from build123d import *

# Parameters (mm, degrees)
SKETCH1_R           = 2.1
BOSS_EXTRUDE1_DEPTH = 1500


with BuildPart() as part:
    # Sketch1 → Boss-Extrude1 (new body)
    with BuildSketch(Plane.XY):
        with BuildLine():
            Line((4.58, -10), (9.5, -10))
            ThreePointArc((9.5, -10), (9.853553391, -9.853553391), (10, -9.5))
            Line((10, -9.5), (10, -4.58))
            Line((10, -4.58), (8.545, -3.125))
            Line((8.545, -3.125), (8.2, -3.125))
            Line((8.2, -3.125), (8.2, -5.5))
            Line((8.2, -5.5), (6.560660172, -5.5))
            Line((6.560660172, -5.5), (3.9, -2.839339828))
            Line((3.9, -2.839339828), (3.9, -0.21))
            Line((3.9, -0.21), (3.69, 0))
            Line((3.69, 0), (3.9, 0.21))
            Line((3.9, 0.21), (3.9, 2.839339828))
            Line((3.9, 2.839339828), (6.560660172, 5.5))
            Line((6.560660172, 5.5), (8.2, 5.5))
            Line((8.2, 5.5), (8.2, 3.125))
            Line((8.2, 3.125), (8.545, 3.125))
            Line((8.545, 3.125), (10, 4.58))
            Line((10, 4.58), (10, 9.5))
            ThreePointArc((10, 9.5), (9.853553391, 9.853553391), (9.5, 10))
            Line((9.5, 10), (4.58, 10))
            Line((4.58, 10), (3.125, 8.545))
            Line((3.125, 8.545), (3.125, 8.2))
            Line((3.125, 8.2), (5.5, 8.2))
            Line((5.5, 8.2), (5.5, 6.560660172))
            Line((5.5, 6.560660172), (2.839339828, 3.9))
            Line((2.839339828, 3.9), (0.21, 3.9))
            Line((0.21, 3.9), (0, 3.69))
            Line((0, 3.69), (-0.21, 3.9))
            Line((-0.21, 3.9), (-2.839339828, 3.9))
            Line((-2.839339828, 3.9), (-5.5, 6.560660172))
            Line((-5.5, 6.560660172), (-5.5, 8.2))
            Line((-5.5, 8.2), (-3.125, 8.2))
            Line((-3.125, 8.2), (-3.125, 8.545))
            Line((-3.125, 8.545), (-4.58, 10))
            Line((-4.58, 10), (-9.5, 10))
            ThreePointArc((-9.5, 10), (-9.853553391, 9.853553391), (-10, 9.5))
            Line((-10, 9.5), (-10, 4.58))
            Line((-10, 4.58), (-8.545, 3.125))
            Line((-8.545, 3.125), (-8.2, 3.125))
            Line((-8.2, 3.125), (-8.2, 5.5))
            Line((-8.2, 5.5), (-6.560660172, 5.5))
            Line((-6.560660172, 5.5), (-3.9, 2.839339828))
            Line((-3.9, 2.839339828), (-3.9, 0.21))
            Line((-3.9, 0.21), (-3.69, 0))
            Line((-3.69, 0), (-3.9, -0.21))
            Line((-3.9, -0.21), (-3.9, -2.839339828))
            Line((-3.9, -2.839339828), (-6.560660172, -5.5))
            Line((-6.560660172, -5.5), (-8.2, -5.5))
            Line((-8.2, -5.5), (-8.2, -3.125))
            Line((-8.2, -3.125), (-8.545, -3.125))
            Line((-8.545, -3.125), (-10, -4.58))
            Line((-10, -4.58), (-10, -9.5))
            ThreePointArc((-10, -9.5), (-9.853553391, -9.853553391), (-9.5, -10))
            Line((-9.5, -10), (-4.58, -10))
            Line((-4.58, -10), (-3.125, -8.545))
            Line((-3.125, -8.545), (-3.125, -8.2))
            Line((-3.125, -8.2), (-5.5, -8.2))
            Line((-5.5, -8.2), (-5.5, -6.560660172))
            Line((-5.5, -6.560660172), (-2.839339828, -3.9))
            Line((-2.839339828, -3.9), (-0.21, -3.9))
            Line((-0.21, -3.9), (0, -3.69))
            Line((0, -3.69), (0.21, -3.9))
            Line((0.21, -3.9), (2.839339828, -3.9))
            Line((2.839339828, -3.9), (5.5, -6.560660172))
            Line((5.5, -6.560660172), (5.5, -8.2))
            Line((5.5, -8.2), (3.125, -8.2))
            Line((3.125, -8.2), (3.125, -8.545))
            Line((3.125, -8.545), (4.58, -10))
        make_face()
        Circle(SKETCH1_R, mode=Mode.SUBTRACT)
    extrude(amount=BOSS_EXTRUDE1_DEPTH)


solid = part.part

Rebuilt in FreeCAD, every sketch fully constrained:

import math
import FreeCAD as App
import Part
import Sketcher

doc = App.newDocument("Part")
body = doc.addObject("PartDesign::Body", "Body")

sketch1 = doc.addObject("Sketcher::SketchObject", "Sketch")
body.addObject(sketch1)
sketch1.AttachmentSupport = (doc.XY_Plane, [""])
sketch1.MapMode = "FlatFace"
sketch1.addGeometry([
    Part.LineSegment(App.Vector(4.58, -10, 0), App.Vector(9.5, -10, 0)),
    Part.ArcOfCircle(Part.Circle(App.Vector(9.5, -9.5, 0), App.Vector(0, 0, 1), 0.5), math.radians(-90), math.radians(0)),
    Part.LineSegment(App.Vector(10, -9.5, 0), App.Vector(10, -4.58, 0)),
    Part.LineSegment(App.Vector(10, -4.58, 0), App.Vector(8.545, -3.125, 0)),
    Part.LineSegment(App.Vector(8.545, -3.125, 0), App.Vector(8.2, -3.125, 0)),
    Part.LineSegment(App.Vector(8.2, -3.125, 0), App.Vector(8.2, -5.5, 0)),
    Part.LineSegment(App.Vector(8.2, -5.5, 0), App.Vector(6.56066, -5.5, 0)),
    Part.LineSegment(App.Vector(6.56066, -5.5, 0), App.Vector(3.9, -2.83934, 0)),
    Part.LineSegment(App.Vector(3.9, -2.83934, 0), App.Vector(3.9, -0.21, 0)),
    Part.LineSegment(App.Vector(3.9, -0.21, 0), App.Vector(3.69, 0, 0)),
    Part.LineSegment(App.Vector(3.69, 0, 0), App.Vector(3.9, 0.21, 0)),
    Part.LineSegment(App.Vector(3.9, 0.21, 0), App.Vector(3.9, 2.83934, 0)),
    Part.LineSegment(App.Vector(3.9, 2.83934, 0), App.Vector(6.56066, 5.5, 0)),
    Part.LineSegment(App.Vector(6.56066, 5.5, 0), App.Vector(8.2, 5.5, 0)),
    Part.LineSegment(App.Vector(8.2, 5.5, 0), App.Vector(8.2, 3.125, 0)),
    Part.LineSegment(App.Vector(8.2, 3.125, 0), App.Vector(8.545, 3.125, 0)),
    Part.LineSegment(App.Vector(8.545, 3.125, 0), App.Vector(10, 4.58, 0)),
    Part.LineSegment(App.Vector(10, 4.58, 0), App.Vector(10, 9.5, 0)),
    Part.ArcOfCircle(Part.Circle(App.Vector(9.5, 9.5, 0), App.Vector(0, 0, 1), 0.5), math.radians(0), math.radians(90)),
    Part.LineSegment(App.Vector(9.5, 10, 0), App.Vector(4.58, 10, 0)),
    Part.LineSegment(App.Vector(4.58, 10, 0), App.Vector(3.125, 8.545, 0)),
    Part.LineSegment(App.Vector(3.125, 8.545, 0), App.Vector(3.125, 8.2, 0)),
    Part.LineSegment(App.Vector(3.125, 8.2, 0), App.Vector(5.5, 8.2, 0)),
    Part.LineSegment(App.Vector(5.5, 8.2, 0), App.Vector(5.5, 6.56066, 0)),
    Part.LineSegment(App.Vector(5.5, 6.56066, 0), App.Vector(2.83934, 3.9, 0)),
    Part.LineSegment(App.Vector(2.83934, 3.9, 0), App.Vector(0.21, 3.9, 0)),
    Part.LineSegment(App.Vector(0.21, 3.9, 0), App.Vector(0, 3.69, 0)),
    Part.LineSegment(App.Vector(0, 3.69, 0), App.Vector(-0.21, 3.9, 0)),
    Part.LineSegment(App.Vector(-0.21, 3.9, 0), App.Vector(-2.83934, 3.9, 0)),
    Part.LineSegment(App.Vector(-2.83934, 3.9, 0), App.Vector(-5.5, 6.56066, 0)),
    Part.LineSegment(App.Vector(-5.5, 6.56066, 0), App.Vector(-5.5, 8.2, 0)),
    Part.LineSegment(App.Vector(-5.5, 8.2, 0), App.Vector(-3.125, 8.2, 0)),
    Part.LineSegment(App.Vector(-3.125, 8.2, 0), App.Vector(-3.125, 8.545, 0)),
    Part.LineSegment(App.Vector(-3.125, 8.545, 0), App.Vector(-4.58, 10, 0)),
    Part.LineSegment(App.Vector(-4.58, 10, 0), App.Vector(-9.5, 10, 0)),
    Part.ArcOfCircle(Part.Circle(App.Vector(-9.5, 9.5, 0), App.Vector(0, 0, 1), 0.5), math.radians(90), math.radians(180)),
    Part.LineSegment(App.Vector(-10, 9.5, 0), App.Vector(-10, 4.58, 0)),
    Part.LineSegment(App.Vector(-10, 4.58, 0), App.Vector(-8.545, 3.125, 0)),
    Part.LineSegment(App.Vector(-8.545, 3.125, 0), App.Vector(-8.2, 3.125, 0)),
    Part.LineSegment(App.Vector(-8.2, 3.125, 0), App.Vector(-8.2, 5.5, 0)),
    Part.LineSegment(App.Vector(-8.2, 5.5, 0), App.Vector(-6.56066, 5.5, 0)),
    Part.LineSegment(App.Vector(-6.56066, 5.5, 0), App.Vector(-3.9, 2.83934, 0)),
    Part.LineSegment(App.Vector(-3.9, 2.83934, 0), App.Vector(-3.9, 0.21, 0)),
    Part.LineSegment(App.Vector(-3.9, 0.21, 0), App.Vector(-3.69, 0, 0)),
    Part.LineSegment(App.Vector(-3.69, 0, 0), App.Vector(-3.9, -0.21, 0)),
    Part.LineSegment(App.Vector(-3.9, -0.21, 0), App.Vector(-3.9, -2.83934, 0)),
    Part.LineSegment(App.Vector(-3.9, -2.83934, 0), App.Vector(-6.56066, -5.5, 0)),
    Part.LineSegment(App.Vector(-6.56066, -5.5, 0), App.Vector(-8.2, -5.5, 0)),
    Part.LineSegment(App.Vector(-8.2, -5.5, 0), App.Vector(-8.2, -3.125, 0)),
    Part.LineSegment(App.Vector(-8.2, -3.125, 0), App.Vector(-8.545, -3.125, 0)),
    Part.LineSegment(App.Vector(-8.545, -3.125, 0), App.Vector(-10, -4.58, 0)),
    Part.LineSegment(App.Vector(-10, -4.58, 0), App.Vector(-10, -9.5, 0)),
    Part.ArcOfCircle(Part.Circle(App.Vector(-9.5, -9.5, 0), App.Vector(0, 0, 1), 0.5), math.radians(180), math.radians(270)),
    Part.LineSegment(App.Vector(-9.5, -10, 0), App.Vector(-4.58, -10, 0)),
    Part.LineSegment(App.Vector(-4.58, -10, 0), App.Vector(-3.125, -8.545, 0)),
    Part.LineSegment(App.Vector(-3.125, -8.545, 0), App.Vector(-3.125, -8.2, 0)),
    Part.LineSegment(App.Vector(-3.125, -8.2, 0), App.Vector(-5.5, -8.2, 0)),
    Part.LineSegment(App.Vector(-5.5, -8.2, 0), App.Vector(-5.5, -6.56066, 0)),
    Part.LineSegment(App.Vector(-5.5, -6.56066, 0), App.Vector(-2.83934, -3.9, 0)),
    Part.LineSegment(App.Vector(-2.83934, -3.9, 0), App.Vector(-0.21, -3.9, 0)),
    Part.LineSegment(App.Vector(-0.21, -3.9, 0), App.Vector(0, -3.69, 0)),
    Part.LineSegment(App.Vector(0, -3.69, 0), App.Vector(0.21, -3.9, 0)),
    Part.LineSegment(App.Vector(0.21, -3.9, 0), App.Vector(2.83934, -3.9, 0)),
    Part.LineSegment(App.Vector(2.83934, -3.9, 0), App.Vector(5.5, -6.56066, 0)),
    Part.LineSegment(App.Vector(5.5, -6.56066, 0), App.Vector(5.5, -8.2, 0)),
    Part.LineSegment(App.Vector(5.5, -8.2, 0), App.Vector(3.125, -8.2, 0)),
    Part.LineSegment(App.Vector(3.125, -8.2, 0), App.Vector(3.125, -8.545, 0)),
    Part.LineSegment(App.Vector(3.125, -8.545, 0), App.Vector(4.58, -10, 0)),
    Part.Circle(App.Vector(0, 0, 0), App.Vector(0, 0, 1), 2.1),
], False)
sketch1.addConstraint([
    Sketcher.Constraint("Tangent", 0, 2, 1, 1),
    Sketcher.Constraint("Tangent", 1, 2, 2, 1),
    Sketcher.Constraint("Coincident", 2, 2, 3, 1),
    Sketcher.Constraint("Coincident", 3, 2, 4, 1),
    Sketcher.Constraint("Coincident", 4, 2, 5, 1),
    Sketcher.Constraint("Coincident", 5, 2, 6, 1),
    Sketcher.Constraint("Coincident", 6, 2, 7, 1),
    Sketcher.Constraint("Coincident", 7, 2, 8, 1),
    Sketcher.Constraint("Coincident", 8, 2, 9, 1),
    Sketcher.Constraint("Coincident", 9, 2, 10, 1),
    Sketcher.Constraint("Coincident", 10, 2, 11, 1),
    Sketcher.Constraint("Coincident", 11, 2, 12, 1),
    Sketcher.Constraint("Coincident", 12, 2, 13, 1),
    Sketcher.Constraint("Coincident", 13, 2, 14, 1),
    Sketcher.Constraint("Coincident", 14, 2, 15, 1),
    Sketcher.Constraint("Coincident", 15, 2, 16, 1),
    Sketcher.Constraint("Coincident", 16, 2, 17, 1),
    Sketcher.Constraint("Tangent", 17, 2, 18, 1),
    Sketcher.Constraint("Tangent", 18, 2, 19, 1),
    Sketcher.Constraint("Coincident", 19, 2, 20, 1),
    Sketcher.Constraint("Coincident", 20, 2, 21, 1),
    Sketcher.Constraint("Coincident", 21, 2, 22, 1),
    Sketcher.Constraint("Coincident", 22, 2, 23, 1),
    Sketcher.Constraint("Coincident", 23, 2, 24, 1),
    Sketcher.Constraint("Coincident", 24, 2, 25, 1),
    Sketcher.Constraint("Coincident", 25, 2, 26, 1),
    Sketcher.Constraint("Coincident", 26, 2, 27, 1),
    Sketcher.Constraint("Coincident", 27, 2, 28, 1),
    Sketcher.Constraint("Coincident", 28, 2, 29, 1),
    Sketcher.Constraint("Coincident", 29, 2, 30, 1),
    Sketcher.Constraint("Coincident", 30, 2, 31, 1),
    Sketcher.Constraint("Coincident", 31, 2, 32, 1),
    Sketcher.Constraint("Coincident", 32, 2, 33, 1),
    Sketcher.Constraint("Coincident", 33, 2, 34, 1),
    Sketcher.Constraint("Tangent", 34, 2, 35, 1),
    Sketcher.Constraint("Tangent", 35, 2, 36, 1),
    Sketcher.Constraint("Coincident", 36, 2, 37, 1),
    Sketcher.Constraint("Coincident", 37, 2, 38, 1),
    Sketcher.Constraint("Coincident", 38, 2, 39, 1),
    Sketcher.Constraint("Coincident", 39, 2, 40, 1),
    Sketcher.Constraint("Coincident", 40, 2, 41, 1),
    Sketcher.Constraint("Coincident", 41, 2, 42, 1),
    Sketcher.Constraint("Coincident", 42, 2, 43, 1),
    Sketcher.Constraint("Coincident", 43, 2, 44, 1),
    Sketcher.Constraint("Coincident", 44, 2, 45, 1),
    Sketcher.Constraint("Coincident", 45, 2, 46, 1),
    Sketcher.Constraint("Coincident", 46, 2, 47, 1),
    Sketcher.Constraint("Coincident", 47, 2, 48, 1),
    Sketcher.Constraint("Coincident", 48, 2, 49, 1),
    Sketcher.Constraint("Coincident", 49, 2, 50, 1),
    Sketcher.Constraint("Coincident", 50, 2, 51, 1),
    Sketcher.Constraint("Tangent", 51, 2, 52, 1),
    Sketcher.Constraint("Tangent", 52, 2, 53, 1),
    Sketcher.Constraint("Coincident", 53, 2, 54, 1),
    Sketcher.Constraint("Coincident", 54, 2, 55, 1),
    Sketcher.Constraint("Coincident", 55, 2, 56, 1),
    Sketcher.Constraint("Coincident", 56, 2, 57, 1),
    Sketcher.Constraint("Coincident", 57, 2, 58, 1),
    Sketcher.Constraint("Coincident", 58, 2, 59, 1),
    Sketcher.Constraint("Coincident", 59, 2, 60, 1),
    Sketcher.Constraint("Coincident", 60, 2, 61, 1),
    Sketcher.Constraint("Coincident", 61, 2, 62, 1),
    Sketcher.Constraint("Coincident", 62, 2, 63, 1),
    Sketcher.Constraint("Coincident", 63, 2, 64, 1),
    Sketcher.Constraint("Coincident", 64, 2, 65, 1),
    Sketcher.Constraint("Coincident", 65, 2, 66, 1),
    Sketcher.Constraint("Coincident", 66, 2, 67, 1),
    Sketcher.Constraint("Coincident", 67, 2, 0, 1),
    Sketcher.Constraint("Horizontal", 0),
    Sketcher.Constraint("Vertical", 2),
    Sketcher.Constraint("Horizontal", 4),
    Sketcher.Constraint("Vertical", 5),
    Sketcher.Constraint("Horizontal", 6),
    Sketcher.Constraint("Vertical", 8),
    Sketcher.Constraint("Vertical", 11),
    Sketcher.Constraint("Horizontal", 13),
    Sketcher.Constraint("Vertical", 14),
    Sketcher.Constraint("Horizontal", 15),
    Sketcher.Constraint("Vertical", 17),
    Sketcher.Constraint("Horizontal", 19),
    Sketcher.Constraint("Vertical", 21),
    Sketcher.Constraint("Horizontal", 22),
    Sketcher.Constraint("Vertical", 23),
    Sketcher.Constraint("Horizontal", 25),
    Sketcher.Constraint("Horizontal", 28),
    Sketcher.Constraint("Vertical", 30),
    Sketcher.Constraint("Horizontal", 31),
    Sketcher.Constraint("Vertical", 32),
    Sketcher.Constraint("Horizontal", 34),
    Sketcher.Constraint("Vertical", 36),
    Sketcher.Constraint("Horizontal", 38),
    Sketcher.Constraint("Vertical", 39),
    Sketcher.Constraint("Horizontal", 40),
    Sketcher.Constraint("Vertical", 42),
    Sketcher.Constraint("Vertical", 45),
    Sketcher.Constraint("Horizontal", 47),
    Sketcher.Constraint("Vertical", 48),
    Sketcher.Constraint("Horizontal", 49),
    Sketcher.Constraint("Vertical", 51),
    Sketcher.Constraint("Horizontal", 53),
    Sketcher.Constraint("Vertical", 55),
    Sketcher.Constraint("Horizontal", 56),
    Sketcher.Constraint("Vertical", 57),
    Sketcher.Constraint("Horizontal", 59),
    Sketcher.Constraint("Horizontal", 62),
    Sketcher.Constraint("Vertical", 64),
    Sketcher.Constraint("Horizontal", 65),
    Sketcher.Constraint("Vertical", 66),
    Sketcher.Constraint("Coincident", 68, 3, -1, 1),
    Sketcher.Constraint("Equal", 1, 18),
    Sketcher.Constraint("Equal", 18, 35),
    Sketcher.Constraint("Equal", 35, 52),
    Sketcher.Constraint("Symmetric", 1, 3, 35, 3, -1, 1),
    Sketcher.Constraint("Symmetric", 18, 3, 52, 3, -1, 1),
    Sketcher.Constraint("Symmetric", 3, 2, 37, 2, -1, 1),
    Sketcher.Constraint("Symmetric", 5, 2, 39, 2, -1, 1),
    Sketcher.Constraint("Symmetric", 7, 2, 41, 2, -1, 1),
    Sketcher.Constraint("Symmetric", 9, 2, 43, 2, -1, 1),
    Sketcher.Constraint("Symmetric", 10, 2, 44, 2, -1, 1),
    Sketcher.Constraint("Symmetric", 12, 2, 46, 2, -1, 1),
    Sketcher.Constraint("Symmetric", 14, 2, 48, 2, -1, 1),
    Sketcher.Constraint("Symmetric", 20, 2, 54, 2, -1, 1),
    Sketcher.Constraint("Symmetric", 22, 2, 56, 2, -1, 1),
    Sketcher.Constraint("Symmetric", 24, 2, 58, 2, -1, 1),
    Sketcher.Constraint("Symmetric", 26, 2, 60, 2, -1, 1),
    Sketcher.Constraint("Symmetric", 27, 2, 61, 2, -1, 1),
    Sketcher.Constraint("Symmetric", 29, 2, 63, 2, -1, 1),
    Sketcher.Constraint("Symmetric", 31, 2, 65, 2, -1, 1),
    Sketcher.Constraint("Symmetric", 18, 3, 35, 3, -2),
    Sketcher.Constraint("Symmetric", 25, 2, 27, 2, -2),
    Sketcher.Constraint("Symmetric", 23, 2, 29, 2, -2),
    Sketcher.Constraint("Symmetric", 21, 2, 31, 2, -2),
    Sketcher.Constraint("Symmetric", 15, 2, 37, 2, -2),
    Sketcher.Constraint("Symmetric", 13, 2, 39, 2, -2),
    Sketcher.Constraint("Symmetric", 11, 2, 41, 2, -2),
    Sketcher.Constraint("PointOnObject", 9, 2, -1),
    Sketcher.Constraint("PointOnObject", 26, 2, -2),
    Sketcher.Constraint("Parallel", 3, 7),
    Sketcher.Constraint("Parallel", 7, 9),
    Sketcher.Constraint("Perpendicular", 9, 10),
    Sketcher.Constraint("Parallel", 10, 12),
    Sketcher.Constraint("Parallel", 12, 16),
    Sketcher.Constraint("Parallel", 16, 20),
    Sketcher.Constraint("Parallel", 20, 24),
    Sketcher.Constraint("Parallel", 24, 26),
    Sketcher.Constraint("Perpendicular", 26, 27),
    Sketcher.Constraint("Parallel", 27, 29),
    Sketcher.Constraint("Parallel", 29, 33),
    Sketcher.Constraint("Parallel", 33, 37),
    Sketcher.Constraint("Parallel", 37, 41),
    Sketcher.Constraint("Parallel", 41, 43),
    Sketcher.Constraint("Parallel", 44, 46),
    Sketcher.Constraint("Parallel", 46, 50),
    Sketcher.Constraint("Parallel", 50, 54),
    Sketcher.Constraint("Parallel", 54, 58),
    Sketcher.Constraint("Parallel", 58, 60),
    Sketcher.Constraint("Parallel", 61, 63),
    Sketcher.Constraint("Parallel", 63, 67),
    Sketcher.Constraint("Horizontal", 20, 2, 32, 2),
    Sketcher.Constraint("Horizontal", 2, 2, 50, 2),
    Sketcher.Constraint("Horizontal", 54, 2, 66, 2),
    Sketcher.Constraint("Equal", 53, 2),
    Sketcher.Constraint("Equal", 65, 5),
    Sketcher.Constraint("Equal", 62, 8),
    Sketcher.Constraint("Equal", 49, 21),
    Sketcher.Constraint("Equal", 47, 23),
    Sketcher.Constraint("Equal", 16, 20),
    Sketcher.Constraint("Equal", 12, 24),
    Sketcher.Constraint("Equal", 10, 26),
    Sketcher.Constraint("Diameter", 68, 4.2),
    Sketcher.Constraint("Radius", 1, 0.5),
    Sketcher.Constraint("DistanceY", 0, 2, -1, 1, 10.0),
    Sketcher.Constraint("DistanceX", 0, 1, 0, 2, 4.92),
    Sketcher.Constraint("DistanceX", -1, 1, 4, 2, 8.2),
    Sketcher.Constraint("DistanceY", 5, 2, -1, 1, 5.5),
    Sketcher.Constraint("DistanceX", -1, 1, 7, 2, 3.9),
    Sketcher.Constraint("DistanceX", 4, 2, 4, 1, 0.345),
    Sketcher.Constraint("DistanceY", 8, 2, -1, 1, 0.21),
    Sketcher.Constraint("DistanceX", 6, 2, 6, 1, 1.63934),
])
pad1 = doc.addObject("PartDesign::Pad", "Pad")
body.addObject(pad1)
pad1.Profile = sketch1
pad1.Length = 1500

doc.recompute()
